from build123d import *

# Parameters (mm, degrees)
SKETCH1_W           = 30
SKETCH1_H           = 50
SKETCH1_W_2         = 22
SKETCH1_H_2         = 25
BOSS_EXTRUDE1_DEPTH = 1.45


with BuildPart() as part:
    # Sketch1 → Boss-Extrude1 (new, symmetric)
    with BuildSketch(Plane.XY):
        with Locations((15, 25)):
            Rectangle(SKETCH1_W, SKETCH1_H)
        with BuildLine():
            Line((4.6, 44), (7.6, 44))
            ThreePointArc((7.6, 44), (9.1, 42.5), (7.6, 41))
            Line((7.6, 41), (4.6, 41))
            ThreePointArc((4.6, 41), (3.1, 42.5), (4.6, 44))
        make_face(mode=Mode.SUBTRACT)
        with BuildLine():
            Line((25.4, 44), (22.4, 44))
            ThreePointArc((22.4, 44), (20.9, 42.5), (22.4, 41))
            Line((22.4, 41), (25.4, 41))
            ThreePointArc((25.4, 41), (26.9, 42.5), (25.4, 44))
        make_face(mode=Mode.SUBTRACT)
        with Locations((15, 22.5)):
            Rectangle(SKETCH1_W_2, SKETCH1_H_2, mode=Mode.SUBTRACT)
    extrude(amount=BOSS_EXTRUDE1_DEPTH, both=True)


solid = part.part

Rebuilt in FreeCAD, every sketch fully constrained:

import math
import FreeCAD as App
import Part
import Sketcher
Q = App.Units.Quantity

doc = App.newDocument("Part")
body = doc.addObject("PartDesign::Body", "Body")

sketch1 = body.newObject("Sketcher::SketchObject", "Sketch")
sketch1.AttachmentSupport = (doc.getObject("XY_Plane"), [""])
sketch1.MapMode = "FlatFace"
sketch1.addGeometry(Part.LineSegment(App.Vector(0, 50, 0), App.Vector(0, 0, 0)), False)
sketch1.addGeometry(Part.LineSegment(App.Vector(0, 0, 0), App.Vector(30, 0, 0)), False)
sketch1.addGeometry(Part.LineSegment(App.Vector(30, 0, 0), App.Vector(30, 50, 0)), False)
sketch1.addGeometry(Part.LineSegment(App.Vector(30, 50, 0), App.Vector(0, 50, 0)), False)
sketch1.addGeometry(Part.LineSegment(App.Vector(26, 10, 0), App.Vector(4, 10, 0)), False)
sketch1.addGeometry(Part.LineSegment(App.Vector(4, 10, 0), App.Vector(4, 35, 0)), False)
sketch1.addGeometry(Part.LineSegment(App.Vector(4, 35, 0), App.Vector(26, 35, 0)), False)
sketch1.addGeometry(Part.LineSegment(App.Vector(26, 35, 0), App.Vector(26, 10, 0)), False)
sketch1.addGeometry(Part.ArcOfCircle(Part.Circle(App.Vector(4.6, 42.5, 0), App.Vector(0, 0, 1), 1.5), math.radians(90), math.radians(270)), False)
sketch1.addGeometry(Part.LineSegment(App.Vector(4.6, 44, 0), App.Vector(7.6, 44, 0)), False)
sketch1.addGeometry(Part.ArcOfCircle(Part.Circle(App.Vector(7.6, 42.5, 0), App.Vector(0, 0, 1), 1.5), math.radians(-90), math.radians(90)), False)
sketch1.addGeometry(Part.LineSegment(App.Vector(7.6, 41, 0), App.Vector(4.6, 41, 0)), False)
sketch1.addGeometry(Part.LineSegment(App.Vector(22.4, 44, 0), App.Vector(25.4, 44, 0)), False)
sketch1.addGeometry(Part.ArcOfCircle(Part.Circle(App.Vector(25.4, 42.5, 0), App.Vector(0, 0, 1), 1.5), math.radians(-90), math.radians(90)), False)
sketch1.addGeometry(Part.LineSegment(App.Vector(25.4, 41, 0), App.Vector(22.4, 41, 0)), False)
sketch1.addGeometry(Part.ArcOfCircle(Part.Circle(App.Vector(22.4, 42.5, 0), App.Vector(0, 0, 1), 1.5), math.radians(90), math.radians(270)), False)
sketch1.addConstraint(Sketcher.Constraint("Coincident", 0, 2, 1, 1))
sketch1.addConstraint(Sketcher.Constraint("Coincident", 1, 2, 2, 1))
sketch1.addConstraint(Sketcher.Constraint("Coincident", 2, 2, 3, 1))
sketch1.addConstraint(Sketcher.Constraint("Coincident", 3, 2, 0, 1))
sketch1.addConstraint(Sketcher.Constraint("Coincident", 4, 2, 5, 1))
sketch1.addConstraint(Sketcher.Constraint("Coincident", 5, 2, 6, 1))
sketch1.addConstraint(Sketcher.Constraint("Coincident", 6, 2, 7, 1))
sketch1.addConstraint(Sketcher.Constraint("Coincident", 7, 2, 4, 1))
sketch1.addConstraint(Sketcher.Constraint("Tangent", 8, 1, 9, 1))
sketch1.addConstraint(Sketcher.Constraint("Tangent", 9, 2, 10, 2))
sketch1.addConstraint(Sketcher.Constraint("Tangent", 10, 1, 11, 1))
sketch1.addConstraint(Sketcher.Constraint("Tangent", 11, 2, 8, 2))
sketch1.addConstraint(Sketcher.Constraint("Tangent", 12, 2, 13, 2))
sketch1.addConstraint(Sketcher.Constraint("Tangent", 13, 1, 14, 1))
sketch1.addConstraint(Sketcher.Constraint("Tangent", 14, 2, 15, 2))
sketch1.addConstraint(Sketcher.Constraint("Tangent", 15, 1, 12, 1))
sketch1.addConstraint(Sketcher.Constraint("Vertical", 0))
sketch1.addConstraint(Sketcher.Constraint("Horizontal", 1))
sketch1.addConstraint(Sketcher.Constraint("Vertical", 2))
sketch1.addConstraint(Sketcher.Constraint("Horizontal", 3))
sketch1.addConstraint(Sketcher.Constraint("Horizontal", 4))
sketch1.addConstraint(Sketcher.Constraint("Vertical", 5))
sketch1.addConstraint(Sketcher.Constraint("Horizontal", 6))
sketch1.addConstraint(Sketcher.Constraint("Vertical", 7))
sketch1.addConstraint(Sketcher.Constraint("Horizontal", 9))
sketch1.addConstraint(Sketcher.Constraint("Horizontal", 11))
sketch1.addConstraint(Sketcher.Constraint("Horizontal", 12))
sketch1.addConstraint(Sketcher.Constraint("Horizontal", 14))
sketch1.addConstraint(Sketcher.Constraint("Coincident", 0, 2, -1, 1))
sketch1.addConstraint(Sketcher.Constraint("Equal", 10, 13))
sketch1.addConstraint(Sketcher.Constraint("Horizontal", 10, 3, 13, 3))
sketch1.addConstraint(Sketcher.Constraint("Equal", 11, 12))
sketch1.addConstraint(Sketcher.Constraint("Radius", 8, Q("1.5 mm")))
sketch1.addConstraint(Sketcher.Constraint("DistanceX", 1, 1, 1, 2, Q("30 mm")))
sketch1.addConstraint(Sketcher.Constraint("DistanceX", 4, 2, 4, 1, Q("22 mm")))
sketch1.addConstraint(Sketcher.Constraint("DistanceX", 9, 1, 9, 2, Q("3 mm")))
sketch1.addConstraint(Sketcher.Constraint("DistanceY", 0, 2, 0, 1, Q("50 mm")))
sketch1.addConstraint(Sketcher.Constraint("DistanceY", 5, 1, 5, 2, Q("25 mm")))
sketch1.addConstraint(Sketcher.Constraint("DistanceX", -1, 1, 4, 2, Q("4 mm")))
sketch1.addConstraint(Sketcher.Constraint("DistanceY", -1, 1, 4, 2, Q("10 mm")))
sketch1.addConstraint(Sketcher.Constraint("DistanceY", -1, 1, 8, 1, Q("44 mm")))
sketch1.addConstraint(Sketcher.Constraint("DistanceX", -1, 1, 8, 3, Q("4.6 mm")))
sketch1.addConstraint(Sketcher.Constraint("DistanceX", -1, 1, 13, 3, Q("25.4 mm")))
pad1 = body.newObject("PartDesign::Pad", "Pad")
pad1.Profile = sketch1
pad1.Length = 2.9
pad1.Midplane = True

doc.recompute()
